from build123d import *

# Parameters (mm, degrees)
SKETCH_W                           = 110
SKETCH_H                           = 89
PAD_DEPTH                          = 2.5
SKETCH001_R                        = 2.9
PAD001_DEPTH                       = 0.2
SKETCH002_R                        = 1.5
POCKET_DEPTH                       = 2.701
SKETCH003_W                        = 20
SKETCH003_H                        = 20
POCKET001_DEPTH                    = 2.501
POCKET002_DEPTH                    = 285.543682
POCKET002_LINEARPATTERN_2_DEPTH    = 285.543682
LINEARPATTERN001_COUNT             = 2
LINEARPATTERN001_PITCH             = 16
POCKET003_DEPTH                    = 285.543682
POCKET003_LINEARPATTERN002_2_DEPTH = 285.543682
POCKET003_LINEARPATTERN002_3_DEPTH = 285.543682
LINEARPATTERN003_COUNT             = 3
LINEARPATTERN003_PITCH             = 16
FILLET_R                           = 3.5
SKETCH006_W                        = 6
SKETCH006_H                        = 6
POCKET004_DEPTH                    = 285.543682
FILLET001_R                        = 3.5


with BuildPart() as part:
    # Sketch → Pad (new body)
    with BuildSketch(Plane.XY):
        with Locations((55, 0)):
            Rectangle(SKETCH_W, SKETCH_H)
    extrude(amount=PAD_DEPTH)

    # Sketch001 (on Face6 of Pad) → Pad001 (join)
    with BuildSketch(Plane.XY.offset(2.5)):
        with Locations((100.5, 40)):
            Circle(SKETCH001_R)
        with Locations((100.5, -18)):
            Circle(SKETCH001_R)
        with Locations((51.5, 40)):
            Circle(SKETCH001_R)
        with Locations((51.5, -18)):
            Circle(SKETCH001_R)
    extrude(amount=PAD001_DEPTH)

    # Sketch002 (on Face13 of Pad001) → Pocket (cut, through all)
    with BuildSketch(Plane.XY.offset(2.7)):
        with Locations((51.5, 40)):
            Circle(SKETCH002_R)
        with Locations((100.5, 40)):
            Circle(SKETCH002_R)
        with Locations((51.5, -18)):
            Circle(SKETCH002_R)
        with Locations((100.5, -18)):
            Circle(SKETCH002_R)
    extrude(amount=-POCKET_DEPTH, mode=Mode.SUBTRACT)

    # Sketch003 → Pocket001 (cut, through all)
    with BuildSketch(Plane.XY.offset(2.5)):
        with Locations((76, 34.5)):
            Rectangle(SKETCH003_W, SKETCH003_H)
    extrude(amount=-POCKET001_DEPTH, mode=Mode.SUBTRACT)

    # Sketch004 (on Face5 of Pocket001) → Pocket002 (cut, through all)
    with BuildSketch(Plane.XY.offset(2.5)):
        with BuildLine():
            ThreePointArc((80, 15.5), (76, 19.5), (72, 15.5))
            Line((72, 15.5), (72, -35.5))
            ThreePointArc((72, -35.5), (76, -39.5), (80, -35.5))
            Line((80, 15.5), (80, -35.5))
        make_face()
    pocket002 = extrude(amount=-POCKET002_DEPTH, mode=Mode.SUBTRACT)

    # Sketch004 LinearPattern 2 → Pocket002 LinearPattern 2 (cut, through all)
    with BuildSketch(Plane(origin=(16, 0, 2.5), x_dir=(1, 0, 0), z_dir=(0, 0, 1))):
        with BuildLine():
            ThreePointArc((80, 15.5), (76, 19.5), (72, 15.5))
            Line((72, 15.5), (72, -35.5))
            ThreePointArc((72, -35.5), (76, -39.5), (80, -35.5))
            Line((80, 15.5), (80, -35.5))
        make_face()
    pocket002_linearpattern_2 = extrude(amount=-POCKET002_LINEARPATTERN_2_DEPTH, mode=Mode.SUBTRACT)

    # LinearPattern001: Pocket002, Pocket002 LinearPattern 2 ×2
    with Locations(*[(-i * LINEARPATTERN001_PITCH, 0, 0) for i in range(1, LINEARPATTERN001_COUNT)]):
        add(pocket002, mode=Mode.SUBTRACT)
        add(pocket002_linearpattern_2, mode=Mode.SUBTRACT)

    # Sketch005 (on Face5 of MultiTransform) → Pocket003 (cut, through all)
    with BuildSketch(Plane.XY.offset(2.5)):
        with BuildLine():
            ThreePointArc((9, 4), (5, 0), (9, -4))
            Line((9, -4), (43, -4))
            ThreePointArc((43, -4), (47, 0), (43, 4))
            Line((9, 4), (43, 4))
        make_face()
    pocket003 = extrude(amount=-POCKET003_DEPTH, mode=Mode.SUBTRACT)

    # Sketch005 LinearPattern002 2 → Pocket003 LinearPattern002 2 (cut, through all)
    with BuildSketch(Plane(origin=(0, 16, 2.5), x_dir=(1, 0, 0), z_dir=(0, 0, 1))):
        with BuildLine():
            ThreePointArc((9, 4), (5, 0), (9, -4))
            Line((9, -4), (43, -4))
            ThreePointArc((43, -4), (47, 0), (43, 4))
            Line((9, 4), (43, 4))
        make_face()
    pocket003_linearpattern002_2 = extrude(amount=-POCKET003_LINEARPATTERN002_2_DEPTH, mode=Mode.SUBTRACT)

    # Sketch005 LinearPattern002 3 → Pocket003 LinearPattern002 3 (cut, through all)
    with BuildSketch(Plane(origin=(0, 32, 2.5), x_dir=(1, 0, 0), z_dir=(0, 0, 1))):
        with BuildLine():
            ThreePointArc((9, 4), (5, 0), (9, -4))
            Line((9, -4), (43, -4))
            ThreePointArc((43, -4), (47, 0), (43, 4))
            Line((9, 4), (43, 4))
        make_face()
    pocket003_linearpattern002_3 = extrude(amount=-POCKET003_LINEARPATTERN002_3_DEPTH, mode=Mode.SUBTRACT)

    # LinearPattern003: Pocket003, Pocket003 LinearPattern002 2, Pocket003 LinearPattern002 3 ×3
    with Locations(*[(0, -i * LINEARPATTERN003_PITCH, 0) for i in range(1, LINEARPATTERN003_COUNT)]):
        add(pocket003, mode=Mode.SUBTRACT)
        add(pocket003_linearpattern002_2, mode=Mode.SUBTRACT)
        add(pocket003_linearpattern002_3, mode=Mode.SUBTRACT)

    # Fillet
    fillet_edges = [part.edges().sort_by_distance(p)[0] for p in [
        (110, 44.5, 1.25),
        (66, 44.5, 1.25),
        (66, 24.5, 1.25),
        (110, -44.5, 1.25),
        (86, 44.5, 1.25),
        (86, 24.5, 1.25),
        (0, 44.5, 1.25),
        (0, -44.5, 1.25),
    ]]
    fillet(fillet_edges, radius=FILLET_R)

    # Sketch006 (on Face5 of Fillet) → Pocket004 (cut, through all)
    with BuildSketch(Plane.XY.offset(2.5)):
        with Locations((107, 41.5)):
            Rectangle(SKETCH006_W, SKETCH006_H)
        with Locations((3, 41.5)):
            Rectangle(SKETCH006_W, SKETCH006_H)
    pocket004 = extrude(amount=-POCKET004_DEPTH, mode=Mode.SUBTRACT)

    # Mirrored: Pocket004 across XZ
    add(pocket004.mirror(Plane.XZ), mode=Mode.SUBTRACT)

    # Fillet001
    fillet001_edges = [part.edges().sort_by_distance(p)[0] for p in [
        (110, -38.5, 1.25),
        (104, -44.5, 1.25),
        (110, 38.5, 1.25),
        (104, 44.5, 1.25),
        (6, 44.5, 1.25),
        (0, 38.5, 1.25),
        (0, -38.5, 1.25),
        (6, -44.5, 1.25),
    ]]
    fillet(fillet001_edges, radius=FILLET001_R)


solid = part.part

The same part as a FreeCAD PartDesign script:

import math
import FreeCAD as App
import Part
import Sketcher
Q = App.Units.Quantity


def edges_at(feature, points):
    """Names of the edges that pass closest to the given points."""
    edges = feature.Shape.Edges
    near = lambda p: min(range(len(edges)), key=lambda i: edges[i].distToShape(Part.Vertex(*p))[0])
    return sorted({f"Edge{near(p) + 1}" for p in points})

doc = App.newDocument("Part")
body = doc.addObject("PartDesign::Body", "Body")

sketch1 = body.newObject("Sketcher::SketchObject", "Sketch")
sketch1.AttachmentSupport = (doc.getObject("XY_Plane"), [""])
sketch1.MapMode = "FlatFace"
sketch1.addGeometry(Part.LineSegment(App.Vector(0, 44.5, 0), App.Vector(0, -44.5, 0)), False)
sketch1.addGeometry(Part.LineSegment(App.Vector(0, -44.5, 0), App.Vector(110, -44.5, 0)), False)
sketch1.addGeometry(Part.LineSegment(App.Vector(110, -44.5, 0), App.Vector(110, 44.5, 0)), False)
sketch1.addGeometry(Part.LineSegment(App.Vector(110, 44.5, 0), App.Vector(0, 44.5, 0)), False)
sketch1.addConstraint(Sketcher.Constraint("Coincident", 0, 2, 1, 1))
sketch1.addConstraint(Sketcher.Constraint("Coincident", 1, 2, 2, 1))
sketch1.addConstraint(Sketcher.Constraint("Coincident", 2, 2, 3, 1))
sketch1.addConstraint(Sketcher.Constraint("Coincident", 3, 2, 0, 1))
sketch1.addConstraint(Sketcher.Constraint("Vertical", 0))
sketch1.addConstraint(Sketcher.Constraint("Horizontal", 1))
sketch1.addConstraint(Sketcher.Constraint("Vertical", 2))
sketch1.addConstraint(Sketcher.Constraint("Horizontal", 3))
sketch1.addConstraint(Sketcher.Constraint("Symmetric", 0, 2, 3, 2, -1, 1))
sketch1.addConstraint(Sketcher.Constraint("DistanceX", 1, 1, 1, 2, Q("110 mm")))
sketch1.addConstraint(Sketcher.Constraint("DistanceY", 0, 2, 0, 1, Q("89 mm")))
pad1 = body.newObject("PartDesign::Pad", "Pad")
pad1.Profile = sketch1
pad1.Length = 2.5

sketch2 = body.newObject("Sketcher::SketchObject", "Sketch001")
sketch2.AttachmentSupport = (doc.getObject("XY_Plane"), [""])
sketch2.MapMode = "FlatFace"
sketch2.AttachmentOffset = App.Placement(App.Vector(0, 0, 2.5), App.Rotation())
sketch2.addGeometry(Part.Circle(App.Vector(100.5, 40, 0), App.Vector(0, 0, 1), 2.9), False)
sketch2.addGeometry(Part.Circle(App.Vector(100.5, -18, 0), App.Vector(0, 0, 1), 2.9), False)
sketch2.addGeometry(Part.Circle(App.Vector(51.5, 40, 0), App.Vector(0, 0, 1), 2.9), False)
sketch2.addGeometry(Part.Circle(App.Vector(51.5, -18, 0), App.Vector(0, 0, 1), 2.9), False)
sketch2.addConstraint(Sketcher.Constraint("Equal", 0, 1))
sketch2.addConstraint(Sketcher.Constraint("Equal", 1, 2))
sketch2.addConstraint(Sketcher.Constraint("Equal", 2, 3))
sketch2.addConstraint(Sketcher.Constraint("Horizontal", 0, 3, 2, 3))
sketch2.addConstraint(Sketcher.Constraint("Horizontal", 1, 3, 3, 3))
sketch2.addConstraint(Sketcher.Constraint("Vertical", 0, 3, 1, 3))
sketch2.addConstraint(Sketcher.Constraint("Vertical", 2, 3, 3, 3))
sketch2.addConstraint(Sketcher.Constraint("Diameter", 0, Q("5.8 mm")))
sketch2.addConstraint(Sketcher.Constraint("DistanceY", -1, 1, 0, 3, Q("40 mm")))
sketch2.addConstraint(Sketcher.Constraint("DistanceY", 1, 3, -1, 1, Q("18 mm")))
sketch2.addConstraint(Sketcher.Constraint("DistanceX", 2, 3, 0, 3, Q("49 mm")))
sketch2.addConstraint(Sketcher.Constraint("DistanceX", -1, 1, 0, 3, Q("100.5 mm")))
pad2 = body.newObject("PartDesign::Pad", "Pad001")
pad2.Profile = sketch2
pad2.Length = 0.2

sketch3 = body.newObject("Sketcher::SketchObject", "Sketch002")
sketch3.AttachmentSupport = (doc.getObject("XY_Plane"), [""])
sketch3.MapMode = "FlatFace"
sketch3.AttachmentOffset = App.Placement(App.Vector(0, 0, 2.7), App.Rotation())
sketch3.addGeometry(Part.Circle(App.Vector(51.5, 40, 0), App.Vector(0, 0, 1), 1.5), False)
sketch3.addGeometry(Part.Circle(App.Vector(100.5, 40, 0), App.Vector(0, 0, 1), 1.5), False)
sketch3.addGeometry(Part.Circle(App.Vector(51.5, -18, 0), App.Vector(0, 0, 1), 1.5), False)
sketch3.addGeometry(Part.Circle(App.Vector(100.5, -18, 0), App.Vector(0, 0, 1), 1.5), False)
sketch3.addConstraint(Sketcher.Constraint("Equal", 0, 1))
sketch3.addConstraint(Sketcher.Constraint("Equal", 1, 2))
sketch3.addConstraint(Sketcher.Constraint("Equal", 2, 3))
sketch3.addConstraint(Sketcher.Constraint("Horizontal", 0, 3, 1, 3))
sketch3.addConstraint(Sketcher.Constraint("Horizontal", 2, 3, 3, 3))
sketch3.addConstraint(Sketcher.Constraint("Vertical", 0, 3, 2, 3))
sketch3.addConstraint(Sketcher.Constraint("Vertical", 1, 3, 3, 3))
sketch3.addConstraint(Sketcher.Constraint("Diameter", 0, Q("3 mm")))
sketch3.addConstraint(Sketcher.Constraint("DistanceY", -1, 1, 0, 3, Q("40 mm")))
sketch3.addConstraint(Sketcher.Constraint("DistanceY", 2, 3, -1, 1, Q("18 mm")))
sketch3.addConstraint(Sketcher.Constraint("DistanceX", 0, 3, 1, 3, Q("49 mm")))
sketch3.addConstraint(Sketcher.Constraint("DistanceX", -1, 1, 0, 3, Q("51.5 mm")))
pocket1 = body.newObject("PartDesign::Pocket", "Pocket")
pocket1.Profile = sketch3
pocket1.Type = "ThroughAll"

sketch4 = body.newObject("Sketcher::SketchObject", "Sketch003")
sketch4.AttachmentSupport = (doc.getObject("XY_Plane"), [""])
sketch4.MapMode = "FlatFace"
sketch4.AttachmentOffset = App.Placement(App.Vector(0, 0, 2.5), App.Rotation())
sketch4.addGeometry(Part.LineSegment(App.Vector(66, 44.5, 0), App.Vector(66, 24.5, 0)), False)
sketch4.addGeometry(Part.LineSegment(App.Vector(66, 24.5, 0), App.Vector(86, 24.5, 0)), False)
sketch4.addGeometry(Part.LineSegment(App.Vector(86, 24.5, 0), App.Vector(86, 44.5, 0)), False)
sketch4.addGeometry(Part.LineSegment(App.Vector(86, 44.5, 0), App.Vector(66, 44.5, 0)), False)
sketch4.addConstraint(Sketcher.Constraint("Coincident", 0, 2, 1, 1))
sketch4.addConstraint(Sketcher.Constraint("Coincident", 1, 2, 2, 1))
sketch4.addConstraint(Sketcher.Constraint("Coincident", 2, 2, 3, 1))
sketch4.addConstraint(Sketcher.Constraint("Coincident", 3, 2, 0, 1))
sketch4.addConstraint(Sketcher.Constraint("Vertical", 0))
sketch4.addConstraint(Sketcher.Constraint("Horizontal", 1))
sketch4.addConstraint(Sketcher.Constraint("Vertical", 2))
sketch4.addConstraint(Sketcher.Constraint("Horizontal", 3))
sketch4.addConstraint(Sketcher.Constraint("Equal", 3, 0))
sketch4.addConstraint(Sketcher.Constraint("DistanceX", 1, 1, 1, 2, Q("20 mm")))
sketch4.addConstraint(Sketcher.Constraint("DistanceX", -1, 1, 0, 2, Q("66 mm")))
sketch4.addConstraint(Sketcher.Constraint("DistanceY", -1, 1, 0, 2, Q("24.5 mm")))
pocket2 = body.newObject("PartDesign::Pocket", "Pocket001")
pocket2.Profile = sketch4
pocket2.Type = "ThroughAll"

sketch5 = body.newObject("Sketcher::SketchObject", "Sketch004")
sketch5.AttachmentSupport = (doc.getObject("XY_Plane"), [""])
sketch5.MapMode = "FlatFace"
sketch5.AttachmentOffset = App.Placement(App.Vector(0, 0, 2.5), App.Rotation())
sketch5.addGeometry(Part.ArcOfCircle(Part.Circle(App.Vector(76, 15.5, 0), App.Vector(0, 0, 1), 4), math.radians(0), math.radians(180)), False)
sketch5.addGeometry(Part.LineSegment(App.Vector(72, 15.5, 0), App.Vector(72, -35.5, 0)), False)
sketch5.addGeometry(Part.ArcOfCircle(Part.Circle(App.Vector(76, -35.5, 0), App.Vector(0, 0, 1), 4), math.radians(180), math.radians(360)), False)
sketch5.addGeometry(Part.LineSegment(App.Vector(80, -35.5, 0), App.Vector(80, 15.5, 0)), False)
sketch5.addConstraint(Sketcher.Constraint("Tangent", 0, 2, 1, 1))
sketch5.addConstraint(Sketcher.Constraint("Tangent", 1, 2, 2, 1))
sketch5.addConstraint(Sketcher.Constraint("Tangent", 2, 2, 3, 1))
sketch5.addConstraint(Sketcher.Constraint("Tangent", 3, 2, 0, 1))
sketch5.addConstraint(Sketcher.Constraint("Vertical", 1))
sketch5.addConstraint(Sketcher.Constraint("Vertical", 3))
sketch5.addConstraint(Sketcher.Constraint("Radius", 0, Q("4 mm")))
sketch5.addConstraint(Sketcher.Constraint("DistanceY", 1, 2, 1, 1, Q("51 mm")))
sketch5.addConstraint(Sketcher.Constraint("DistanceX", -1, 1, 0, 3, Q("76 mm")))
sketch5.addConstraint(Sketcher.Constraint("DistanceY", -1, 1, 0, 3, Q("15.5 mm")))
pocket3 = body.newObject("PartDesign::Pocket", "Pocket002")
pocket3.Profile = sketch5
pocket3.Type = "ThroughAll"

sketch6 = body.newObject("Sketcher::SketchObject", "Sketch005")
sketch6.AttachmentSupport = (doc.getObject("XY_Plane"), [""])
sketch6.MapMode = "FlatFace"
sketch6.AttachmentOffset = App.Placement(App.Vector(0, 0, 2.5), App.Rotation())
sketch6.addGeometry(Part.ArcOfCircle(Part.Circle(App.Vector(92, 15.5, 0), App.Vector(0, 0, 1), 4), math.radians(0), math.radians(180)), False)
sketch6.addGeometry(Part.LineSegment(App.Vector(88, 15.5, 0), App.Vector(88, -35.5, 0)), False)
sketch6.addGeometry(Part.ArcOfCircle(Part.Circle(App.Vector(92, -35.5, 0), App.Vector(0, 0, 1), 4), math.radians(180), math.radians(360)), False)
sketch6.addGeometry(Part.LineSegment(App.Vector(96, -35.5, 0), App.Vector(96, 15.5, 0)), False)
sketch6.addConstraint(Sketcher.Constraint("Tangent", 0, 2, 1, 1))
sketch6.addConstraint(Sketcher.Constraint("Tangent", 1, 2, 2, 1))
sketch6.addConstraint(Sketcher.Constraint("Tangent", 2, 2, 3, 1))
sketch6.addConstraint(Sketcher.Constraint("Tangent", 3, 2, 0, 1))
sketch6.addConstraint(Sketcher.Constraint("Vertical", 1))
sketch6.addConstraint(Sketcher.Constraint("Vertical", 3))
sketch6.addConstraint(Sketcher.Constraint("Radius", 0, Q("4 mm")))
sketch6.addConstraint(Sketcher.Constraint("DistanceY", 1, 2, 1, 1, Q("51 mm")))
sketch6.addConstraint(Sketcher.Constraint("DistanceX", -1, 1, 0, 3, Q("92 mm")))
sketch6.addConstraint(Sketcher.Constraint("DistanceY", -1, 1, 0, 3, Q("15.5 mm")))
pocket4 = body.newObject("PartDesign::Pocket", "Pocket003")
pocket4.Profile = sketch6
pocket4.Type = "ThroughAll"
doc.recompute()

linearpattern = body.newObject("PartDesign::LinearPattern", "LinearPattern")
linearpattern.Originals = [pocket3, pocket4]
linearpattern.Direction = (doc.getObject("X_Axis"), [""])
linearpattern.Mode = "offset"
linearpattern.Offset = 16
linearpattern.Occurrences = 2
linearpattern.Reversed = True
body.Tip = linearpattern

sketch7 = body.newObject("Sketcher::SketchObject", "Sketch006")
sketch7.AttachmentSupport = (doc.getObject("XY_Plane"), [""])
sketch7.MapMode = "FlatFace"
sketch7.AttachmentOffset = App.Placement(App.Vector(0, 0, 2.5), App.Rotation())
sketch7.addGeometry(Part.ArcOfCircle(Part.Circle(App.Vector(9, 0, 0), App.Vector(0, 0, 1), 4), math.radians(90), math.radians(270)), False)
sketch7.addGeometry(Part.LineSegment(App.Vector(9, -4, 0), App.Vector(43, -4, 0)), False)
sketch7.addGeometry(Part.ArcOfCircle(Part.Circle(App.Vector(43, 0, 0), App.Vector(0, 0, 1), 4), math.radians(-90), math.radians(90)), False)
sketch7.addGeometry(Part.LineSegment(App.Vector(43, 4, 0), App.Vector(9, 4, 0)), False)
sketch7.addConstraint(Sketcher.Constraint("Tangent", 0, 2, 1, 1))
sketch7.addConstraint(Sketcher.Constraint("Tangent", 1, 2, 2, 1))
sketch7.addConstraint(Sketcher.Constraint("Tangent", 2, 2, 3, 1))
sketch7.addConstraint(Sketcher.Constraint("Tangent", 3, 2, 0, 1))
sketch7.addConstraint(Sketcher.Constraint("Horizontal", 1))
sketch7.addConstraint(Sketcher.Constraint("Horizontal", 3))
sketch7.addConstraint(Sketcher.Constraint("PointOnObject", 0, 3, -1))
sketch7.addConstraint(Sketcher.Constraint("Radius", 0, Q("4 mm")))
sketch7.addConstraint(Sketcher.Constraint("DistanceX", 1, 1, 1, 2, Q("34 mm")))
sketch7.addConstraint(Sketcher.Constraint("DistanceX", -1, 1, 0, 3, Q("9 mm")))
pocket5 = body.newObject("PartDesign::Pocket", "Pocket004")
pocket5.Profile = sketch7
pocket5.Type = "ThroughAll"

sketch8 = body.newObject("Sketcher::SketchObject", "Sketch007")
sketch8.AttachmentSupport = (doc.getObject("XY_Plane"), [""])
sketch8.MapMode = "FlatFace"
sketch8.AttachmentOffset = App.Placement(App.Vector(0, 0, 2.5), App.Rotation())
sketch8.addGeometry(Part.ArcOfCircle(Part.Circle(App.Vector(9, 16, 0), App.Vector(0, 0, 1), 4), math.radians(90), math.radians(270)), False)
sketch8.addGeometry(Part.LineSegment(App.Vector(9, 12, 0), App.Vector(43, 12, 0)), False)
sketch8.addGeometry(Part.ArcOfCircle(Part.Circle(App.Vector(43, 16, 0), App.Vector(0, 0, 1), 4), math.radians(-90), math.radians(90)), False)
sketch8.addGeometry(Part.LineSegment(App.Vector(43, 20, 0), App.Vector(9, 20, 0)), False)
sketch8.addConstraint(Sketcher.Constraint("Tangent", 0, 2, 1, 1))
sketch8.addConstraint(Sketcher.Constraint("Tangent", 1, 2, 2, 1))
sketch8.addConstraint(Sketcher.Constraint("Tangent", 2, 2, 3, 1))
sketch8.addConstraint(Sketcher.Constraint("Tangent", 3, 2, 0, 1))
sketch8.addConstraint(Sketcher.Constraint("Horizontal", 1))
sketch8.addConstraint(Sketcher.Constraint("Horizontal", 3))
sketch8.addConstraint(Sketcher.Constraint("Radius", 0, Q("4 mm")))
sketch8.addConstraint(Sketcher.Constraint("DistanceX", 1, 1, 1, 2, Q("34 mm")))
sketch8.addConstraint(Sketcher.Constraint("DistanceX", -1, 1, 0, 3, Q("9 mm")))
sketch8.addConstraint(Sketcher.Constraint("DistanceY", -1, 1, 0, 3, Q("16 mm")))
pocket6 = body.newObject("PartDesign::Pocket", "Pocket005")
pocket6.Profile = sketch8
pocket6.Type = "ThroughAll"

sketch9 = body.newObject("Sketcher::SketchObject", "Sketch008")
sketch9.AttachmentSupport = (doc.getObject("XY_Plane"), [""])
sketch9.MapMode = "FlatFace"
sketch9.AttachmentOffset = App.Placement(App.Vector(0, 0, 2.5), App.Rotation())
sketch9.addGeometry(Part.ArcOfCircle(Part.Circle(App.Vector(9, 32, 0), App.Vector(0, 0, 1), 4), math.radians(90), math.radians(270)), False)
sketch9.addGeometry(Part.LineSegment(App.Vector(9, 28, 0), App.Vector(43, 28, 0)), False)
sketch9.addGeometry(Part.ArcOfCircle(Part.Circle(App.Vector(43, 32, 0), App.Vector(0, 0, 1), 4), math.radians(-90), math.radians(90)), False)
sketch9.addGeometry(Part.LineSegment(App.Vector(43, 36, 0), App.Vector(9, 36, 0)), False)
sketch9.addConstraint(Sketcher.Constraint("Tangent", 0, 2, 1, 1))
sketch9.addConstraint(Sketcher.Constraint("Tangent", 1, 2, 2, 1))
sketch9.addConstraint(Sketcher.Constraint("Tangent", 2, 2, 3, 1))
sketch9.addConstraint(Sketcher.Constraint("Tangent", 3, 2, 0, 1))
sketch9.addConstraint(Sketcher.Constraint("Horizontal", 1))
sketch9.addConstraint(Sketcher.Constraint("Horizontal", 3))
sketch9.addConstraint(Sketcher.Constraint("Radius", 0, Q("4 mm")))
sketch9.addConstraint(Sketcher.Constraint("DistanceX", 1, 1, 1, 2, Q("34 mm")))
sketch9.addConstraint(Sketcher.Constraint("DistanceX", -1, 1, 0, 3, Q("9 mm")))
sketch9.addConstraint(Sketcher.Constraint("DistanceY", -1, 1, 0, 3, Q("32 mm")))
pocket7 = body.newObject("PartDesign::Pocket", "Pocket006")
pocket7.Profile = sketch9
pocket7.Type = "ThroughAll"
doc.recompute()

linearpattern2 = body.newObject("PartDesign::LinearPattern", "LinearPattern001")
linearpattern2.Originals = [pocket5, pocket6, pocket7]
linearpattern2.Direction = (doc.getObject("Y_Axis"), [""])
linearpattern2.Mode = "offset"
linearpattern2.Offset = 16
linearpattern2.Occurrences = 3
linearpattern2.Reversed = True
body.Tip = linearpattern2
doc.recompute()

fillet = body.newObject("PartDesign::Fillet", "Fillet")
fillet.Base = (linearpattern2, edges_at(linearpattern2, [
    (110, 44.5, 1.25),
    (66, 44.5, 1.25),
    (66, 24.5, 1.25),
    (110, -44.5, 1.25),
    (86, 44.5, 1.25),
    (86, 24.5, 1.25),
    (0, 44.5, 1.25),
    (0, -44.5, 1.25),
]))
fillet.Radius = 3.5

sketch10 = body.newObject("Sketcher::SketchObject", "Sketch009")
sketch10.AttachmentSupport = (doc.getObject("XY_Plane"), [""])
sketch10.MapMode = "FlatFace"
sketch10.AttachmentOffset = App.Placement(App.Vector(0, 0, 2.5), App.Rotation())
sketch10.addGeometry(Part.LineSegment(App.Vector(104, 44.5, 0), App.Vector(104, 38.5, 0)), False)
sketch10.addGeometry(Part.LineSegment(App.Vector(104, 38.5, 0), App.Vector(110, 38.5, 0)), False)
sketch10.addGeometry(Part.LineSegment(App.Vector(110, 38.5, 0), App.Vector(110, 44.5, 0)), False)
sketch10.addGeometry(Part.LineSegment(App.Vector(110, 44.5, 0), App.Vector(104, 44.5, 0)), False)
sketch10.addGeometry(Part.LineSegment(App.Vector(0, 44.5, 0), App.Vector(0, 38.5, 0)), False)
sketch10.addGeometry(Part.LineSegment(App.Vector(0, 38.5, 0), App.Vector(6, 38.5, 0)), False)
sketch10.addGeometry(Part.LineSegment(App.Vector(6, 38.5, 0), App.Vector(6, 44.5, 0)), False)
sketch10.addGeometry(Part.LineSegment(App.Vector(6, 44.5, 0), App.Vector(0, 44.5, 0)), False)
sketch10.addConstraint(Sketcher.Constraint("Coincident", 0, 2, 1, 1))
sketch10.addConstraint(Sketcher.Constraint("Coincident", 1, 2, 2, 1))
sketch10.addConstraint(Sketcher.Constraint("Coincident", 2, 2, 3, 1))
sketch10.addConstraint(Sketcher.Constraint("Coincident", 3, 2, 0, 1))
sketch10.addConstraint(Sketcher.Constraint("Coincident", 4, 2, 5, 1))
sketch10.addConstraint(Sketcher.Constraint("Coincident", 5, 2, 6, 1))
sketch10.addConstraint(Sketcher.Constraint("Coincident", 6, 2, 7, 1))
sketch10.addConstraint(Sketcher.Constraint("Coincident", 7, 2, 4, 1))
sketch10.addConstraint(Sketcher.Constraint("Vertical", 0))
sketch10.addConstraint(Sketcher.Constraint("Horizontal", 1))
sketch10.addConstraint(Sketcher.Constraint("Vertical", 2))
sketch10.addConstraint(Sketcher.Constraint("Horizontal", 3))
sketch10.addConstraint(Sketcher.Constraint("Vertical", 4))
sketch10.addConstraint(Sketcher.Constraint("Horizontal", 5))
sketch10.addConstraint(Sketcher.Constraint("Vertical", 6))
sketch10.addConstraint(Sketcher.Constraint("Horizontal", 7))
sketch10.addConstraint(Sketcher.Constraint("PointOnObject", 4, 2, -2))
sketch10.addConstraint(Sketcher.Constraint("Horizontal", 1, 2, 4, 2))
sketch10.addConstraint(Sketcher.Constraint("Horizontal", 3, 2, 6, 2))
sketch10.addConstraint(Sketcher.Constraint("Equal", 3, 5))
sketch10.addConstraint(Sketcher.Constraint("Equal", 7, 0))
sketch10.addConstraint(Sketcher.Constraint("DistanceX", 1, 1, 1, 2, Q("6 mm")))
sketch10.addConstraint(Sketcher.Constraint("DistanceX", -1, 1, 0, 2, Q("104 mm")))
sketch10.addConstraint(Sketcher.Constraint("DistanceY", -1, 1, 0, 2, Q("38.5 mm")))
pocket8 = body.newObject("PartDesign::Pocket", "Pocket007")
pocket8.Profile = sketch10
pocket8.Type = "ThroughAll"
doc.recompute()

mirrored = body.newObject("PartDesign::Mirrored", "Mirrored")
mirrored.Originals = [pocket8]
mirrored.MirrorPlane = (doc.getObject("XZ_Plane"), [""])
body.Tip = mirrored
doc.recompute()

fillet2 = body.newObject("PartDesign::Fillet", "Fillet001")
fillet2.Base = (mirrored, edges_at(mirrored, [
    (110, -38.5, 1.25),
    (104, -44.5, 1.25),
    (110, 38.5, 1.25),
    (104, 44.5, 1.25),
    (6, 44.5, 1.25),
    (0, 38.5, 1.25),
    (0, -38.5, 1.25),
    (6, -44.5, 1.25),
]))
fillet2.Radius = 3.5

doc.recompute()
